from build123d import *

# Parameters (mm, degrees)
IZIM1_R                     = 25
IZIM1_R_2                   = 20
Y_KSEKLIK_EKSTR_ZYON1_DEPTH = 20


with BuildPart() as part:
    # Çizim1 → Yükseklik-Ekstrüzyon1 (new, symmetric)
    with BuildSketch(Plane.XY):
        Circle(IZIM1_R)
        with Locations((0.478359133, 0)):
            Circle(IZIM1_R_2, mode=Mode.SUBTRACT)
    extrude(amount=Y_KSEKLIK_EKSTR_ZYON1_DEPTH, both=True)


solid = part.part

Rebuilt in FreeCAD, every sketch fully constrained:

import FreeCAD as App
import Part
import Sketcher
from FreeCAD import Vector

doc = App.newDocument("Part")
body = doc.addObject("PartDesign::Body", "Body")

# Sketch on XY plane
sketch1 = body.newObject("Sketcher::SketchObject", "Sketch")
sketch1.AttachmentSupport = (doc.getObject("XY_Plane"), [""])
sketch1.MapMode = "FlatFace"
sketch1.addGeometry([
    Part.Circle(Vector(0, 0, 0), Vector(0, 0, 1), 25),
    Part.Circle(Vector(0, 0, 0), Vector(0, 0, 1), 20),
], False)
sketch1.addConstraint([
    Sketcher.Constraint("Coincident", 0, 3, -1, 1),
    Sketcher.Constraint("PointOnObject", 1, 3, -1),
    Sketcher.Constraint("Diameter", 0, 50.0),
    Sketcher.Constraint("Diameter", 1, 40.0),
    Sketcher.Constraint("DistanceX", -1, 1, 1, 3, 0.478359),
])
pad1 = body.newObject("PartDesign::Pad", "Pad")
pad1.Profile = sketch1
pad1.Length = 40
pad1.Midplane = True

doc.recompute()
